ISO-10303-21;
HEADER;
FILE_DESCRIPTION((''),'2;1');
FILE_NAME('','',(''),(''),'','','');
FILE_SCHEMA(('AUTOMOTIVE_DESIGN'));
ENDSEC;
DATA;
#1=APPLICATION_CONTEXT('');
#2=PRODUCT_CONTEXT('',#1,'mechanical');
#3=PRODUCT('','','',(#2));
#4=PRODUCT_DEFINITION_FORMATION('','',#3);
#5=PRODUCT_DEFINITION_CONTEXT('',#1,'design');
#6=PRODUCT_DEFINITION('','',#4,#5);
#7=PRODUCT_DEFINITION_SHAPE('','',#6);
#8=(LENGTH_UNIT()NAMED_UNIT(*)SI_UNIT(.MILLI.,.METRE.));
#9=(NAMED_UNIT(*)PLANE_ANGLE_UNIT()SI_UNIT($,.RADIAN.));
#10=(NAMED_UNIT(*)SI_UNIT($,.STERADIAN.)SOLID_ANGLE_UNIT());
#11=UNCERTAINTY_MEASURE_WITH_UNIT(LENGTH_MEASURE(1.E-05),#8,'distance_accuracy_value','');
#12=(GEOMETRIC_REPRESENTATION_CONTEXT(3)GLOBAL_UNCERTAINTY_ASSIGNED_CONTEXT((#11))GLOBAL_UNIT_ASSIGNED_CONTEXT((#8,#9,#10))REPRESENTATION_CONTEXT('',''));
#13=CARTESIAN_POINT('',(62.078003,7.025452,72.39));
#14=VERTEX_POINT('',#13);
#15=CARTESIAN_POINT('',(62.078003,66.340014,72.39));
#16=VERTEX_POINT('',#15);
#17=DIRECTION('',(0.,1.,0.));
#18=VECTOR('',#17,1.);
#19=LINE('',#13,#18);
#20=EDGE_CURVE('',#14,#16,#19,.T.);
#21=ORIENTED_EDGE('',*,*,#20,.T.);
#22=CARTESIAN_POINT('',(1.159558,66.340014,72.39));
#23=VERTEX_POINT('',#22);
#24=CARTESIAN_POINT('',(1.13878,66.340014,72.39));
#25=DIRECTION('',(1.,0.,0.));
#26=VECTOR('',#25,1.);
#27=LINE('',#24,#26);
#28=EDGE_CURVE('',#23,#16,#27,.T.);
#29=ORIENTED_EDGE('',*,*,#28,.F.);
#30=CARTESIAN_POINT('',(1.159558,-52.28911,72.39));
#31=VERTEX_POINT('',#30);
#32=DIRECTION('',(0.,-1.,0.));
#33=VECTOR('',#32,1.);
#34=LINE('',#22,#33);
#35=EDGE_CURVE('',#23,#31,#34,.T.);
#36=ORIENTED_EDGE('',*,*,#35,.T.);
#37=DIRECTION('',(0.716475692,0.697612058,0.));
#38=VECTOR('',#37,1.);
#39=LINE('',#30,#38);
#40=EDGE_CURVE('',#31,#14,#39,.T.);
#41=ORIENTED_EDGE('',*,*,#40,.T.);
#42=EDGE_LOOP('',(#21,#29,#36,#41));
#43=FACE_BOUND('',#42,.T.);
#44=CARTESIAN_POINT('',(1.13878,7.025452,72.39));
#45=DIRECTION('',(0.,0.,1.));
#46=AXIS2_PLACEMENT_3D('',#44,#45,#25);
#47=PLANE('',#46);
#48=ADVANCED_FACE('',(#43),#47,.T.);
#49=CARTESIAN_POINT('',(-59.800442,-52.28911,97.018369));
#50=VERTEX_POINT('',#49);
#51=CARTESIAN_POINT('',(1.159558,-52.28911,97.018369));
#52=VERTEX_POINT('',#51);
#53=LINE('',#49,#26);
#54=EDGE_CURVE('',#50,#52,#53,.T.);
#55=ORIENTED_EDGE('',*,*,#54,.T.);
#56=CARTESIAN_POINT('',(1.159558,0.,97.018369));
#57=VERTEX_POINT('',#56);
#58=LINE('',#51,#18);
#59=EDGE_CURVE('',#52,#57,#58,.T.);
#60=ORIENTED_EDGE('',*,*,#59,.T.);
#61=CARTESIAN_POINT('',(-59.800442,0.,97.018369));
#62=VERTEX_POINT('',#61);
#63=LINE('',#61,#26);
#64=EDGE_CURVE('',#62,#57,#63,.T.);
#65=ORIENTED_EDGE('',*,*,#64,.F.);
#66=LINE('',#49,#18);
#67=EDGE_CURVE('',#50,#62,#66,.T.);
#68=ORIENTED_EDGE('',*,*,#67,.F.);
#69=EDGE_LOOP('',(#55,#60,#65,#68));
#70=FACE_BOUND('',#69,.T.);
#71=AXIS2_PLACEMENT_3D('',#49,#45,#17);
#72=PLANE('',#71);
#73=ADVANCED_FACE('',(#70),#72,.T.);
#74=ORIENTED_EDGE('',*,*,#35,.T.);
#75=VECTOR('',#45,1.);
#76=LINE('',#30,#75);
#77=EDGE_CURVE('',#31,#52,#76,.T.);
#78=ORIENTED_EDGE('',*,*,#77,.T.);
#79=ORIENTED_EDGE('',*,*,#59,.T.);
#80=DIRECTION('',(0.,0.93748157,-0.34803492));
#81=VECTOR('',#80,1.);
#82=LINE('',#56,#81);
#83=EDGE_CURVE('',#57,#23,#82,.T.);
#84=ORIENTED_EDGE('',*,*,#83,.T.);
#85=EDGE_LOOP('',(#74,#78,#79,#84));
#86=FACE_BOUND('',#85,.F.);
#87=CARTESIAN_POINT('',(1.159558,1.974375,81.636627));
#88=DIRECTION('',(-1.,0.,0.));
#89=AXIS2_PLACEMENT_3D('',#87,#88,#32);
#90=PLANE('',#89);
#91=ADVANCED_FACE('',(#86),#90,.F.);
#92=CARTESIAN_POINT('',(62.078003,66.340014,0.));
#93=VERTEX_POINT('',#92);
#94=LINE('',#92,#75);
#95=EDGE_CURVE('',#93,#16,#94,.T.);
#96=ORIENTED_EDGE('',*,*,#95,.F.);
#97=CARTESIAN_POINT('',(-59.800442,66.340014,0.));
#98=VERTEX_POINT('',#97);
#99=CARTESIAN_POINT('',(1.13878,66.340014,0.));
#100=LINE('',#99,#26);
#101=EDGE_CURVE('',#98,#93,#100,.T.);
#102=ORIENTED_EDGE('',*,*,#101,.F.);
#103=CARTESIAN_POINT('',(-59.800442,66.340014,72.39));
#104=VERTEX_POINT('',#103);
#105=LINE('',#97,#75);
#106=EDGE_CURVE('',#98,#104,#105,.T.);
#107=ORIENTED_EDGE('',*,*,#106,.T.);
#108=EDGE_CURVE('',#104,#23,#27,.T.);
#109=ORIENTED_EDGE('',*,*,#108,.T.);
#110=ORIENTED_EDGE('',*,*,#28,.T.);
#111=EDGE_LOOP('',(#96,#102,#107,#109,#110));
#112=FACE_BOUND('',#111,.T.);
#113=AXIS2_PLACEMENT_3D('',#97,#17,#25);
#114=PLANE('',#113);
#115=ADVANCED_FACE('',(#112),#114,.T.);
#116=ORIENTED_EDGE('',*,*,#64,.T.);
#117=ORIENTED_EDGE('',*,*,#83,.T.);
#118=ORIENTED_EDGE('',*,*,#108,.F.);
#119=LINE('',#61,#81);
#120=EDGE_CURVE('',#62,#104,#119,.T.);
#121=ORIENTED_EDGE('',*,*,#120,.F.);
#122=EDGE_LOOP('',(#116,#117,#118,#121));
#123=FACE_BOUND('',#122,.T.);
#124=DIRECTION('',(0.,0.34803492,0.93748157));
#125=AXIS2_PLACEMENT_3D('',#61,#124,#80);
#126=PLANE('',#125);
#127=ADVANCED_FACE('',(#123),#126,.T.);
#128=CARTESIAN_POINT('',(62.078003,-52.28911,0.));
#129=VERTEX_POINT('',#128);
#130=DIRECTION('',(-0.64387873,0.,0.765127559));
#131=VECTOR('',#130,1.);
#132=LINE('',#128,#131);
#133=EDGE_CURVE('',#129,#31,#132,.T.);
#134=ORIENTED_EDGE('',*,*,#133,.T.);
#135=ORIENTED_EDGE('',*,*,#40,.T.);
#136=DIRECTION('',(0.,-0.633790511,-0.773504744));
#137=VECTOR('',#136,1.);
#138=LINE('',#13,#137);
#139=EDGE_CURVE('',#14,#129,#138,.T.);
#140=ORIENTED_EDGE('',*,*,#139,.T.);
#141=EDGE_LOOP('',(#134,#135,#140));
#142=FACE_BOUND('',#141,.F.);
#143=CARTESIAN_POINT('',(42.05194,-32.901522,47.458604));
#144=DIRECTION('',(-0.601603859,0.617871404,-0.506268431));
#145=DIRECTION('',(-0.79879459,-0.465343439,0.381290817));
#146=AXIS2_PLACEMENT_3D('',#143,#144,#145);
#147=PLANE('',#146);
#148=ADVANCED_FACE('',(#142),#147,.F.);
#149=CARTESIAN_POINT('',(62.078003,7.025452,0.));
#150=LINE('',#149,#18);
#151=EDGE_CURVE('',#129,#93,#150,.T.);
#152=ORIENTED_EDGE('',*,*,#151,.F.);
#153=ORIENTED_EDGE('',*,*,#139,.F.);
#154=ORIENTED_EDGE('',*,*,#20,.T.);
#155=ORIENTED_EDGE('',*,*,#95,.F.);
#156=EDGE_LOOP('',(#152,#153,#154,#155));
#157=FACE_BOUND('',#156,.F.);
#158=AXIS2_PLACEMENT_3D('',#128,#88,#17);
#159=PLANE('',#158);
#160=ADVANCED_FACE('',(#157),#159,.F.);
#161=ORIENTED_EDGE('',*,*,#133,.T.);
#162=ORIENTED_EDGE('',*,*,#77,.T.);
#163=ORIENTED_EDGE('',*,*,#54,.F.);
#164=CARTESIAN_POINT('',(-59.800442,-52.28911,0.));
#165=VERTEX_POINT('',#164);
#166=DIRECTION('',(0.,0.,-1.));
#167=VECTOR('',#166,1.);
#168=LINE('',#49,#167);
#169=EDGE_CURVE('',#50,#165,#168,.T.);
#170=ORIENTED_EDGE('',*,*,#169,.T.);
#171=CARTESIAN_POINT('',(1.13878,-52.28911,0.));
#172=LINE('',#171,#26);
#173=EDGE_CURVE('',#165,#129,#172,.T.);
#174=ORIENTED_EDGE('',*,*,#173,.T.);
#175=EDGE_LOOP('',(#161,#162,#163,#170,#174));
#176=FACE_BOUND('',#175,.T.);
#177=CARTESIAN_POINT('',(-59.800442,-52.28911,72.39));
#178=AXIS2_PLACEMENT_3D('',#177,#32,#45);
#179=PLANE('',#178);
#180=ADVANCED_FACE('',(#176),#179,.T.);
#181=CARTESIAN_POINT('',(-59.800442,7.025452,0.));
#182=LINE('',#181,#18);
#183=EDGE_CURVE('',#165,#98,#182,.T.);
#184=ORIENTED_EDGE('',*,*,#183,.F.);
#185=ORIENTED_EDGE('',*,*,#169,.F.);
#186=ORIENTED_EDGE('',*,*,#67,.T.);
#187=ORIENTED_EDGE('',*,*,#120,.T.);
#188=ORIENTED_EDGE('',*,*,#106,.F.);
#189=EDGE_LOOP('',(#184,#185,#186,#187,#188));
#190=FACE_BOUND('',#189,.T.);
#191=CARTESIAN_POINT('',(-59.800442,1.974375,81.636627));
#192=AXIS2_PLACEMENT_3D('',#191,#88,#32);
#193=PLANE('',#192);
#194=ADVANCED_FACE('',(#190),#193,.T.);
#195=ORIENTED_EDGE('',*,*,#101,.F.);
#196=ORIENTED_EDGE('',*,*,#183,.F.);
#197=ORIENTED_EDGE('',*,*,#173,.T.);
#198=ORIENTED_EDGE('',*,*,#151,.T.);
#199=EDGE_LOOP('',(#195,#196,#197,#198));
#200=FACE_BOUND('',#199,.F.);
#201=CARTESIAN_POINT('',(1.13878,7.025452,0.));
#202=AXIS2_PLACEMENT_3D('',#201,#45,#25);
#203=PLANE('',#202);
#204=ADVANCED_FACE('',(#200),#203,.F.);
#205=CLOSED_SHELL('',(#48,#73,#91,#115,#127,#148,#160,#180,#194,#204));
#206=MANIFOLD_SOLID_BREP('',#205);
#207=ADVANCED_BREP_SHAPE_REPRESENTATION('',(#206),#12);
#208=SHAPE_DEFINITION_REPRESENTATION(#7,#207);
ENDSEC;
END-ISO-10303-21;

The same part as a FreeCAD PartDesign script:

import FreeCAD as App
import Part
import Sketcher
from FreeCAD import Vector
Q = App.Units.Quantity

doc = App.newDocument("Part")
params = doc.addObject("Spreadsheet::Sheet", "Params")
for row, (alias, value) in enumerate([
    ("pad1_length", "2.85 in"),
    ("pad2_length", "2.4 in"),
], start=1):
    params.set(f"A{row}", alias)
    params.set(f"B{row}", "=" + value)
    params.setAlias(f"B{row}", alias)

body = doc.addObject("PartDesign::Body", "Body")

sketch1 = body.newObject("Sketcher::SketchObject", "Sketch")
sketch1.AttachmentSupport = (doc.getObject("XY_Plane"), [""])
sketch1.MapMode = "FlatFace"
sketch1.addGeometry([
    Part.LineSegment(Vector(-60, 66, 0), Vector(-60, -52, 0)),
    Part.LineSegment(Vector(-60, -52, 0), Vector(62, -52, 0)),
    Part.LineSegment(Vector(62, -52, 0), Vector(62, 66, 0)),
    Part.LineSegment(Vector(62, 66, 0), Vector(-60, 66, 0)),
], False)
sketch1.addConstraint([
    Sketcher.Constraint("Coincident", 0, 2, 1, 1),
    Sketcher.Constraint("Coincident", 1, 2, 2, 1),
    Sketcher.Constraint("Coincident", 2, 2, 3, 1),
    Sketcher.Constraint("Coincident", 3, 2, 0, 1),
    Sketcher.Constraint("Vertical", 0),
    Sketcher.Constraint("Horizontal", 1),
    Sketcher.Constraint("Vertical", 2),
    Sketcher.Constraint("Horizontal", 3),
    Sketcher.Constraint("DistanceX", 1, 1, 1, 2, 121.878445),
    Sketcher.Constraint("DistanceY", 0, 2, 0, 1, 118.629124),
    Sketcher.Constraint("DistanceY", 0, 2, -1, 1, 52.28911),
    Sketcher.Constraint("DistanceX", 0, 2, -1, 1, 59.800442),
])
pad1 = body.newObject("PartDesign::Pad", "Pad")
pad1.Profile = sketch1
pad1.setExpression("Length", "Params.pad1_length")

sketch2 = body.newObject("Sketcher::SketchObject", "Sketch001")
sketch2.AttachmentSupport = (doc.getObject("YZ_Plane"), [""])
sketch2.MapMode = "FlatFace"
sketch2.AttachmentOffset = App.Placement(Vector(0, 0, -59.800442), App.Rotation())
sketch2.addGeometry([
    Part.LineSegment(Vector(66, 72, 0), Vector(-52, 72, 0)),
    Part.LineSegment(Vector(-52, 72, 0), Vector(-52, 97, 0)),
    Part.LineSegment(Vector(-52, 97, 0), Vector(0, 97, 0)),
    Part.LineSegment(Vector(0, 97, 0), Vector(66, 72, 0)),
], False)
sketch2.addConstraint([
    Sketcher.Constraint("Coincident", 0, 2, 1, 1),
    Sketcher.Constraint("Coincident", 1, 2, 2, 1),
    Sketcher.Constraint("Coincident", 2, 2, 3, 1),
    Sketcher.Constraint("Coincident", 3, 2, 0, 1),
    Sketcher.Constraint("Horizontal", 0),
    Sketcher.Constraint("Vertical", 1),
    Sketcher.Constraint("Horizontal", 2),
    Sketcher.Constraint("PointOnObject", 2, 2, -2),
    Sketcher.Constraint("DistanceY", -1, 1, 0, 2, Q("2.85 in")),
    Sketcher.Constraint("DistanceX", 2, 1, 2, 2, 52.28911),
    Sketcher.Constraint("DistanceY", 1, 1, 1, 2, 24.628369),
    Sketcher.Constraint("DistanceX", 0, 2, 0, 1, 118.629124),
])
pad2 = body.newObject("PartDesign::Pad", "Pad001")
pad2.Profile = sketch2
pad2.setExpression("Length", "Params.pad2_length")

sketch3 = body.newObject("Sketcher::SketchObject", "Sketch002")
sketch3.Placement = App.Placement(Vector(41.904303, -43.037407, 35.263779), App.Rotation(Vector(-0.79879459, -0.465343439, 0.381290817), Vector(0, 0.633790511, 0.773504743), Vector(-0.601603859, 0.617871404, -0.506268431), "ZXY"))
sketch3.addGeometry([
    Part.LineSegment(Vector(-25, 60, 0), Vector(-25, -33, 0)),
    Part.LineSegment(Vector(-25, -33, 0), Vector(51, 23, 0)),
    Part.LineSegment(Vector(51, 23, 0), Vector(-25, 60, 0)),
], False)
sketch3.addConstraint([
    Sketcher.Constraint("Coincident", 0, 2, 1, 1),
    Sketcher.Constraint("Coincident", 1, 2, 2, 1),
    Sketcher.Constraint("Coincident", 2, 2, 0, 1),
    Sketcher.Constraint("Vertical", 0),
    Sketcher.Constraint("Distance", 2, 85.025139),
    Sketcher.Constraint("DistanceY", 0, 2, 0, 1, 93.587015),
    Sketcher.Constraint("DistanceX", 0, 2, -1, 1, 25.255179),
    Sketcher.Constraint("DistanceY", 0, 2, -1, 1, 33.140342),
    Sketcher.Constraint("DistanceX", -1, 1, 1, 2, 51.007788),
])
pocket1 = body.newObject("PartDesign::Pocket", "Pocket")
pocket1.Profile = sketch3
pocket1.Type = "ThroughAll"

doc.recompute()
